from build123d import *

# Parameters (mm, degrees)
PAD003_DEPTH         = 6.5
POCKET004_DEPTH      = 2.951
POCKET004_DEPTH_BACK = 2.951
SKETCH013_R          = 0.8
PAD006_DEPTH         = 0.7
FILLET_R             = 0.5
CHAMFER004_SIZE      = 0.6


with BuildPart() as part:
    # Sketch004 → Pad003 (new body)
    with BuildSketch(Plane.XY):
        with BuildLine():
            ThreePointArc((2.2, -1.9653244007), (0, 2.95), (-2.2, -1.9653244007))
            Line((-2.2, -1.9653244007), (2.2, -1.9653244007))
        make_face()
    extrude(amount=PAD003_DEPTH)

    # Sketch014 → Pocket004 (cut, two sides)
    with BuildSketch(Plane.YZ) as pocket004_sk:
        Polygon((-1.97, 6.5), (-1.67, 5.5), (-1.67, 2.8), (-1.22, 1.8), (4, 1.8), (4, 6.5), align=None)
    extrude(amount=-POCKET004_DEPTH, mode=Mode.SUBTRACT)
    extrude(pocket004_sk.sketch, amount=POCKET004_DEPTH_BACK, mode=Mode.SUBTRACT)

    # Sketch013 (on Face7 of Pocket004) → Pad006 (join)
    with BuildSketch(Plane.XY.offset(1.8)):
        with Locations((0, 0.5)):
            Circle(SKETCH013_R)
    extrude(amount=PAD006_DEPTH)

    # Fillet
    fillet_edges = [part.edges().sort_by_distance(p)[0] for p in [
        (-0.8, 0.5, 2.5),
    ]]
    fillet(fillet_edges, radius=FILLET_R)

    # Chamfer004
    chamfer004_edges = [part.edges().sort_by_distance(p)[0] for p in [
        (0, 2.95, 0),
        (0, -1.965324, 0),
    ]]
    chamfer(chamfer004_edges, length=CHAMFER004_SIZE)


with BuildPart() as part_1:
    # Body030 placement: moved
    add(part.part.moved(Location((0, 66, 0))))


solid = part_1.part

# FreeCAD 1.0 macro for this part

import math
import FreeCAD as App
import Part
import Sketcher

V = App.Vector
Q = App.Units.Quantity


def edges_at(feature, points):
    """Names of the edges that pass closest to the given points."""
    edges = feature.Shape.Edges
    near = lambda p: min(range(len(edges)), key=lambda i: edges[i].distToShape(Part.Vertex(*p))[0])
    return sorted({f"Edge{near(p) + 1}" for p in points})

doc = App.newDocument("Part")
params = doc.addObject("Spreadsheet::Sheet", "Params")
for row, (alias, value) in enumerate([
    ("sketch1_radius", "2.95 mm"),
    ("sketch1_width", "4.4 mm"),
    ("pad1_length", "6.5 mm"),
    ("sketch2_height", "2.7 mm"),
    ("sketch2_height2", "4.7 mm"),
    ("sketch2_width", "5.22 mm"),
    ("sketch2_width2", "5.97 mm"),
    ("sketch3_diameter", "1.6 mm"),
    ("pad2_length", "0.7 mm"),
    ("fillet_radius", "0.5 mm"),
    ("chamfer_size", "0.6 mm"),
], start=1):
    params.set(f"A{row}", alias)
    params.set(f"B{row}", "=" + value)
    params.setAlias(f"B{row}", alias)

body = doc.addObject("PartDesign::Body", "Body")

# Sketch on XY plane
sketch1 = body.newObject("Sketcher::SketchObject", "Sketch")
sketch1.AttachmentSupport = (doc.getObject("XY_Plane"), [""])
sketch1.MapMode = "FlatFace"
sketch1.addGeometry([
    Part.ArcOfCircle(Part.Circle(V(0, 0, 0), V(0, 0, 1), 2.95), math.radians(-41.775348), math.radians(221.775348)),
    Part.LineSegment(V(-2.2, -1.965324, 0), V(2.2, -1.965324, 0)),
], False)
sketch1.addConstraint([
    Sketcher.Constraint("Coincident", 0, 1, 1, 2),
    Sketcher.Constraint("Coincident", 1, 1, 0, 2),
    Sketcher.Constraint("Horizontal", 1),
    Sketcher.Constraint("Coincident", 0, 3, -1, 1),
    Sketcher.Constraint("Radius", 0, Q("2.95 mm")),
    Sketcher.Constraint("DistanceX", 1, 1, 1, 2, Q("4.4 mm")),
])
sketch1.setExpression("Constraints[4]", "Params.sketch1_radius")
sketch1.setExpression("Constraints[5]", "Params.sketch1_width")
pad1 = body.newObject("PartDesign::Pad", "Pad")
pad1.Profile = sketch1
pad1.setExpression("Length", "Params.pad1_length")

# Sketch on YZ plane
sketch2 = body.newObject("Sketcher::SketchObject", "Sketch001")
sketch2.AttachmentSupport = (doc.getObject("YZ_Plane"), [""])
sketch2.MapMode = "FlatFace"
sketch2.addGeometry([
    Part.LineSegment(V(-1.97, 6.5, 0), V(-1.67, 5.5, 0)),  # 0
    Part.LineSegment(V(-1.67, 5.5, 0), V(-1.67, 2.8, 0)),  # 1
    Part.LineSegment(V(-1.67, 2.8, 0), V(-1.22, 1.8, 0)),  # 2
    Part.LineSegment(V(-1.22, 1.8, 0), V(4, 1.8, 0)),  # 3
    Part.LineSegment(V(4, 1.8, 0), V(4, 6.5, 0)),  # 4
    Part.LineSegment(V(4, 6.5, 0), V(-1.97, 6.5, 0)),  # 5
], False)
sketch2.addConstraint([
    Sketcher.Constraint("Coincident", 0, 2, 1, 1),
    Sketcher.Constraint("Coincident", 1, 2, 2, 1),
    Sketcher.Constraint("Coincident", 2, 2, 3, 1),
    Sketcher.Constraint("Coincident", 3, 2, 4, 1),
    Sketcher.Constraint("Coincident", 4, 2, 5, 1),
    Sketcher.Constraint("Coincident", 5, 2, 0, 1),
    Sketcher.Constraint("Vertical", 1),
    Sketcher.Constraint("Horizontal", 3),
    Sketcher.Constraint("Vertical", 4),
    Sketcher.Constraint("Horizontal", 5),
    Sketcher.Constraint("DistanceY", 1, 2, 1, 1, Q("2.7 mm")),
    Sketcher.Constraint("DistanceY", 4, 1, 4, 2, Q("4.7 mm")),
    Sketcher.Constraint("DistanceX", -1, 1, 3, 2, Q("4 mm")),
    Sketcher.Constraint("DistanceY", 2, 2, 1, 2, Q("1 mm")),
    Sketcher.Constraint("DistanceX", 3, 1, 3, 2, Q("5.22 mm")),
    Sketcher.Constraint("DistanceX", 5, 2, 5, 1, Q("5.97 mm")),
    Sketcher.Constraint("DistanceY", -1, 1, 0, 2, Q("5.5 mm")),
    Sketcher.Constraint("DistanceX", 5, 2, 0, 2, Q("0.3 mm")),
])
sketch2.setExpression("Constraints[10]", "Params.sketch2_height")
sketch2.setExpression("Constraints[11]", "Params.sketch2_height2")
sketch2.setExpression("Constraints[14]", "Params.sketch2_width")
sketch2.setExpression("Constraints[15]", "Params.sketch2_width2")
pocket1 = body.newObject("PartDesign::Pocket", "Pocket")
pocket1.Profile = sketch2
pocket1.Type = "ThroughAll"
pocket1.Midplane = True

# Sketch on XY plane
sketch3 = body.newObject("Sketcher::SketchObject", "Sketch002")
sketch3.AttachmentSupport = (doc.getObject("XY_Plane"), [""])
sketch3.MapMode = "FlatFace"
sketch3.AttachmentOffset = App.Placement(V(0, 0, 1.8), App.Rotation())
sketch3.addGeometry(Part.Circle(V(0, 0.5, 0), V(0, 0, 1), 0.8), False)
sketch3.addConstraint([
    Sketcher.Constraint("PointOnObject", 0, 3, -2),
    Sketcher.Constraint("Diameter", 0, Q("1.6 mm")),
    Sketcher.Constraint("DistanceY", -1, 1, 0, 3, Q("0.5 mm")),
])
sketch3.setExpression("Constraints[1]", "Params.sketch3_diameter")
pad2 = body.newObject("PartDesign::Pad", "Pad001")
pad2.Profile = sketch3
pad2.setExpression("Length", "Params.pad2_length")
doc.recompute()

fillet = body.newObject("PartDesign::Fillet", "Fillet")
fillet.Base = (pad2, edges_at(pad2, [(-0.8, 0.5, 2.5)]))
fillet.setExpression("Radius", "Params.fillet_radius")
doc.recompute()

chamfer = body.newObject("PartDesign::Chamfer", "Chamfer")
chamfer.Base = (fillet, edges_at(fillet, [(0, 2.95, 0), (0, -1.965, 0)]))
chamfer.setExpression("Size", "Params.chamfer_size")
body2 = doc.addObject("PartDesign::Body", "Body001")
doc.recompute()

body.Placement = App.Placement(V(0, 66, 0), App.Rotation(V(0, 0, 1), 0))
boolean = body2.newObject("PartDesign::Boolean", "Boolean")
boolean.Type = "Fuse"
boolean.addObjects([body])

doc.recompute()
